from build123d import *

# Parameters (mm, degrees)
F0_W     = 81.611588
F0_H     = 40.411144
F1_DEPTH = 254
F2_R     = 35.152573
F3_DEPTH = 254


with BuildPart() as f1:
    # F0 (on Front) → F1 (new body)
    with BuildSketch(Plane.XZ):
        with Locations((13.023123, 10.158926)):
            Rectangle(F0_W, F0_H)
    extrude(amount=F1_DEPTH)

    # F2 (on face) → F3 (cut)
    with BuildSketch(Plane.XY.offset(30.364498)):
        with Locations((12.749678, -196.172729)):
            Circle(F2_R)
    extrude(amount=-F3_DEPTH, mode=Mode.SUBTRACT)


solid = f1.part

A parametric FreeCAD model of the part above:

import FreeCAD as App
import Part
import Sketcher
from FreeCAD import Vector

doc = App.newDocument("Part")
params = doc.addObject("Spreadsheet::Sheet", "Params")
for row, (alias, value) in enumerate([
    ("pad1_length", "10 in"),
    ("pocket1_length", "10 in"),
], start=1):
    params.set(f"A{row}", alias)
    params.set(f"B{row}", "=" + value)
    params.setAlias(f"B{row}", alias)

body = doc.addObject("PartDesign::Body", "Body")

sketch1 = body.newObject("Sketcher::SketchObject", "Sketch")
sketch1.AttachmentSupport = (doc.getObject("XZ_Plane"), [""])
sketch1.MapMode = "FlatFace"
sketch1.addGeometry(Part.LineSegment(Vector(-28, 30, 0), Vector(-28, -10, 0)), False)
sketch1.addGeometry(Part.LineSegment(Vector(-28, -10, 0), Vector(54, -10, 0)), False)
sketch1.addGeometry(Part.LineSegment(Vector(54, -10, 0), Vector(54, 30, 0)), False)
sketch1.addGeometry(Part.LineSegment(Vector(54, 30, 0), Vector(-28, 30, 0)), False)
sketch1.addConstraint(Sketcher.Constraint("Coincident", 0, 2, 1, 1))
sketch1.addConstraint(Sketcher.Constraint("Coincident", 1, 2, 2, 1))
sketch1.addConstraint(Sketcher.Constraint("Coincident", 2, 2, 3, 1))
sketch1.addConstraint(Sketcher.Constraint("Coincident", 3, 2, 0, 1))
sketch1.addConstraint(Sketcher.Constraint("Vertical", 0))
sketch1.addConstraint(Sketcher.Constraint("Horizontal", 1))
sketch1.addConstraint(Sketcher.Constraint("Vertical", 2))
sketch1.addConstraint(Sketcher.Constraint("Horizontal", 3))
sketch1.addConstraint(Sketcher.Constraint("DistanceY", -1, 1, 2, 2, 30.364498))
sketch1.addConstraint(Sketcher.Constraint("DistanceX", 1, 1, 1, 2, 81.611588))
sketch1.addConstraint(Sketcher.Constraint("DistanceY", 0, 2, 0, 1, 40.411144))
sketch1.addConstraint(Sketcher.Constraint("DistanceX", 0, 2, -1, 1, 27.782671))
pad1 = body.newObject("PartDesign::Pad", "Pad")
pad1.Profile = sketch1
pad1.setExpression("Length", "Params.pad1_length")

sketch2 = body.newObject("Sketcher::SketchObject", "Sketch001")
sketch2.AttachmentSupport = (doc.getObject("XY_Plane"), [""])
sketch2.MapMode = "FlatFace"
sketch2.AttachmentOffset = App.Placement(Vector(0, 0, 30.364498), App.Rotation())
sketch2.addGeometry(Part.Circle(Vector(13, -196, 0), Vector(0, 0, 1), 35), False)
sketch2.addConstraint(Sketcher.Constraint("Diameter", 0, 70.305146))
sketch2.addConstraint(Sketcher.Constraint("DistanceY", 0, 3, -1, 1, 196.172729))
sketch2.addConstraint(Sketcher.Constraint("DistanceX", -1, 1, 0, 3, 12.749678))
pocket1 = body.newObject("PartDesign::Pocket", "Pocket")
pocket1.Profile = sketch2
pocket1.setExpression("Length", "Params.pocket1_length")

doc.recompute()
